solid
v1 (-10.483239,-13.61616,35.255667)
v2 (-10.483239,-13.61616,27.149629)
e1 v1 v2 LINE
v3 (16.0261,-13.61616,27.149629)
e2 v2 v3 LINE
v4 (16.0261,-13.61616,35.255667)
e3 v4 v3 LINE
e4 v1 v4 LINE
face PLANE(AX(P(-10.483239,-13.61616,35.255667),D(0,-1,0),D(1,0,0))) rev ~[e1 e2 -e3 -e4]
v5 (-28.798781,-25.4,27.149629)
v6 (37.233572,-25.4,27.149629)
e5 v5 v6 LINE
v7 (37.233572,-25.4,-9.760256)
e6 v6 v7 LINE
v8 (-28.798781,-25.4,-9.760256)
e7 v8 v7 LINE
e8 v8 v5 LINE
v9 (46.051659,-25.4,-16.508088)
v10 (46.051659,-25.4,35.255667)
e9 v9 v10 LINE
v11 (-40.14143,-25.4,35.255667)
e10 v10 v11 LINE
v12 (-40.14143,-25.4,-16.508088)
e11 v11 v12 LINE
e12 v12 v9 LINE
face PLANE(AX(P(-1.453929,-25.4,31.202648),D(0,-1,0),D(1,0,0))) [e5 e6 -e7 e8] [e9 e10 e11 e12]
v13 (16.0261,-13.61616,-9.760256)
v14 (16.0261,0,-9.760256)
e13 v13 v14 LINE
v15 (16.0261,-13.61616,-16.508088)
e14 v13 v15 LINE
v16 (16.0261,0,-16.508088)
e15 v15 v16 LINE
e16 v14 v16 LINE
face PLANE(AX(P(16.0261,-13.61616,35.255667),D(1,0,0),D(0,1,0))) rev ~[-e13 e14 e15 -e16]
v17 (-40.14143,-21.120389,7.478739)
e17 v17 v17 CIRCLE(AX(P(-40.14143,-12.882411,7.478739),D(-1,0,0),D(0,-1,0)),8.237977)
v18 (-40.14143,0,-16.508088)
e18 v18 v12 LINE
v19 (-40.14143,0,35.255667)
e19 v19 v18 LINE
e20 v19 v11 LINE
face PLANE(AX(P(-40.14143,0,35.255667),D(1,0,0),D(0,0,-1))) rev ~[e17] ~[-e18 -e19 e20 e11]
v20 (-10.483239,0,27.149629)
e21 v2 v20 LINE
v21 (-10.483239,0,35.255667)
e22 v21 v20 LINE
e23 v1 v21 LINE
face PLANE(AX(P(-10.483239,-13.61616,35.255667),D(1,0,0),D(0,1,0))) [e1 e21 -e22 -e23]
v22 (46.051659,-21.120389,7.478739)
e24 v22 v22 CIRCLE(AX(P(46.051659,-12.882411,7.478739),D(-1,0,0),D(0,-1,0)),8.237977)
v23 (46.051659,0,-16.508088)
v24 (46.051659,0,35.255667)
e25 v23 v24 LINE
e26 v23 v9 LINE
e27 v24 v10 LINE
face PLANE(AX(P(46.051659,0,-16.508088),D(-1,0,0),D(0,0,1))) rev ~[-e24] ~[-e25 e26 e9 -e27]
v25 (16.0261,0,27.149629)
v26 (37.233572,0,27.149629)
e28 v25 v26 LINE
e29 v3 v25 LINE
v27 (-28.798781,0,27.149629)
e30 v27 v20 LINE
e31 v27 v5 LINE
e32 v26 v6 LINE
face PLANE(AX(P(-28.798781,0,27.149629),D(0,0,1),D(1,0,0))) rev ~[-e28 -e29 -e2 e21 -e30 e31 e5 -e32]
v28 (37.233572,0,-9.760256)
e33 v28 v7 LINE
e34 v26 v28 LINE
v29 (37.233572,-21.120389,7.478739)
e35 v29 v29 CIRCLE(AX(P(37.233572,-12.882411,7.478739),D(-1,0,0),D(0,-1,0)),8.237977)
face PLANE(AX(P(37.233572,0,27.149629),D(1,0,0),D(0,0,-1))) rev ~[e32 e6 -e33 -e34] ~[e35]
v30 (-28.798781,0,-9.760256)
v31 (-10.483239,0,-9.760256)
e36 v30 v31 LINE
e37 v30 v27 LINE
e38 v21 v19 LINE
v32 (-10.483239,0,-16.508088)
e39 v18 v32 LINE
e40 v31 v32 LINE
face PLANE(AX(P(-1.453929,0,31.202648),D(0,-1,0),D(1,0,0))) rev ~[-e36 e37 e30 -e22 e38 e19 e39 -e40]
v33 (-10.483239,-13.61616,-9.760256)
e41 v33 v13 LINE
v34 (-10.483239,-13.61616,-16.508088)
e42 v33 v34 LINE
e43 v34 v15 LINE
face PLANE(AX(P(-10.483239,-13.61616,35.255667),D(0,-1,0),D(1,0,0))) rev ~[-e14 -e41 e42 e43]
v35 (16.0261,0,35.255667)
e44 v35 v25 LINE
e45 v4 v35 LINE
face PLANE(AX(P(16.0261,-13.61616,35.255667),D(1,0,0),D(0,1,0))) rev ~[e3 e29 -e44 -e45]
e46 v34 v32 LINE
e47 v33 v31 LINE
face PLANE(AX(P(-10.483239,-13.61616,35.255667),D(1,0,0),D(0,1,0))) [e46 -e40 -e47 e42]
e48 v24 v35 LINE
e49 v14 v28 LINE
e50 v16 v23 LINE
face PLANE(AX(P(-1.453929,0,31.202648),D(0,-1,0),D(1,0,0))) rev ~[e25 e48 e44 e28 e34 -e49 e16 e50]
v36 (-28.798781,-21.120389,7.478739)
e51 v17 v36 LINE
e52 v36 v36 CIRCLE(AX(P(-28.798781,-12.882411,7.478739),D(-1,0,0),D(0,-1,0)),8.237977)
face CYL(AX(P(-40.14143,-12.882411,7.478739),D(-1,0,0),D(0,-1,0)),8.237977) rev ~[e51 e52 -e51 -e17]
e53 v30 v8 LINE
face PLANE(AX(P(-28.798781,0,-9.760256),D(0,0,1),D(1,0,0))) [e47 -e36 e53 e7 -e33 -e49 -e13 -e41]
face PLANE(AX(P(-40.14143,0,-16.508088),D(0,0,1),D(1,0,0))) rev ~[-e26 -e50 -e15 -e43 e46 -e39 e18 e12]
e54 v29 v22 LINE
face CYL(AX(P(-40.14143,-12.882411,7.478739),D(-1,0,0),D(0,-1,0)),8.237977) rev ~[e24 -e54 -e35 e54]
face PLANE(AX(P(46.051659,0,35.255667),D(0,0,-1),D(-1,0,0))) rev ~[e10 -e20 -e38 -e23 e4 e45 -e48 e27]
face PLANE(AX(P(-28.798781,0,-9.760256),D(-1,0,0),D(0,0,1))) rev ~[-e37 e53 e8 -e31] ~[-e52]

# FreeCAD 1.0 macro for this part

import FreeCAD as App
import Part
import Sketcher
from FreeCAD import Vector
Q = App.Units.Quantity

doc = App.newDocument("Part")
body = doc.addObject("PartDesign::Body", "Body")

sketch1 = body.newObject("Sketcher::SketchObject", "Sketch")
sketch1.AttachmentSupport = (doc.getObject("XZ_Plane"), [""])
sketch1.MapMode = "FlatFace"
sketch1.addGeometry(Part.LineSegment(Vector(-40, 35, 0), Vector(-40, -17, 0)), False)
sketch1.addGeometry(Part.LineSegment(Vector(-40, -17, 0), Vector(46, -17, 0)), False)
sketch1.addGeometry(Part.LineSegment(Vector(46, -17, 0), Vector(46, 35, 0)), False)
sketch1.addGeometry(Part.LineSegment(Vector(46, 35, 0), Vector(-40, 35, 0)), False)
sketch1.addGeometry(Part.LineSegment(Vector(-29, 27, 0), Vector(37, 27, 0)), False)
sketch1.addGeometry(Part.LineSegment(Vector(37, 27, 0), Vector(37, -10, 0)), False)
sketch1.addGeometry(Part.LineSegment(Vector(37, -10, 0), Vector(-29, -10, 0)), False)
sketch1.addGeometry(Part.LineSegment(Vector(-29, -10, 0), Vector(-29, 27, 0)), False)
sketch1.addConstraint(Sketcher.Constraint("Coincident", 0, 2, 1, 1))
sketch1.addConstraint(Sketcher.Constraint("Coincident", 1, 2, 2, 1))
sketch1.addConstraint(Sketcher.Constraint("Coincident", 2, 2, 3, 1))
sketch1.addConstraint(Sketcher.Constraint("Coincident", 3, 2, 0, 1))
sketch1.addConstraint(Sketcher.Constraint("Coincident", 4, 2, 5, 1))
sketch1.addConstraint(Sketcher.Constraint("Coincident", 5, 2, 6, 1))
sketch1.addConstraint(Sketcher.Constraint("Coincident", 6, 2, 7, 1))
sketch1.addConstraint(Sketcher.Constraint("Coincident", 7, 2, 4, 1))
sketch1.addConstraint(Sketcher.Constraint("Vertical", 0))
sketch1.addConstraint(Sketcher.Constraint("Horizontal", 1))
sketch1.addConstraint(Sketcher.Constraint("Vertical", 2))
sketch1.addConstraint(Sketcher.Constraint("Horizontal", 3))
sketch1.addConstraint(Sketcher.Constraint("Horizontal", 4))
sketch1.addConstraint(Sketcher.Constraint("Vertical", 5))
sketch1.addConstraint(Sketcher.Constraint("Horizontal", 6))
sketch1.addConstraint(Sketcher.Constraint("Vertical", 7))
sketch1.addConstraint(Sketcher.Constraint("DistanceX", 1, 1, 1, 2, 86.193088))
sketch1.addConstraint(Sketcher.Constraint("DistanceX", 4, 1, 4, 2, 66.032354))
sketch1.addConstraint(Sketcher.Constraint("DistanceY", 0, 2, 0, 1, 51.763754))
sketch1.addConstraint(Sketcher.Constraint("DistanceY", 5, 2, 5, 1, 36.909885))
sketch1.addConstraint(Sketcher.Constraint("DistanceX", 0, 2, -1, 1, 40.14143))
sketch1.addConstraint(Sketcher.Constraint("DistanceY", -1, 1, 4, 2, 27.149629))
sketch1.addConstraint(Sketcher.Constraint("DistanceX", 6, 2, -1, 1, 28.798781))
sketch1.addConstraint(Sketcher.Constraint("DistanceY", 1, 2, 5, 2, 6.747832))
pad1 = body.newObject("PartDesign::Pad", "Pad")
pad1.Profile = sketch1
pad1.Length = Q("1 in")

sketch2 = body.newObject("Sketcher::SketchObject", "Sketch001")
sketch2.AttachmentSupport = (doc.getObject("XZ_Plane"), [""])
sketch2.MapMode = "FlatFace"
sketch2.addGeometry(Part.LineSegment(Vector(-40, 35, 0), Vector(-40, -17, 0)), False)
sketch2.addGeometry(Part.LineSegment(Vector(-40, -17, 0), Vector(46, -17, 0)), False)
sketch2.addGeometry(Part.LineSegment(Vector(46, -17, 0), Vector(46, 35, 0)), False)
sketch2.addGeometry(Part.LineSegment(Vector(46, 35, 0), Vector(-40, 35, 0)), False)
sketch2.addGeometry(Part.LineSegment(Vector(-29, 27, 0), Vector(37, 27, 0)), False)
sketch2.addGeometry(Part.LineSegment(Vector(37, 27, 0), Vector(37, -10, 0)), False)
sketch2.addGeometry(Part.LineSegment(Vector(37, -10, 0), Vector(-29, -10, 0)), False)
sketch2.addGeometry(Part.LineSegment(Vector(-29, -10, 0), Vector(-29, 27, 0)), False)
sketch2.addConstraint(Sketcher.Constraint("Coincident", 0, 2, 1, 1))
sketch2.addConstraint(Sketcher.Constraint("Coincident", 1, 2, 2, 1))
sketch2.addConstraint(Sketcher.Constraint("Coincident", 2, 2, 3, 1))
sketch2.addConstraint(Sketcher.Constraint("Coincident", 3, 2, 0, 1))
sketch2.addConstraint(Sketcher.Constraint("Coincident", 4, 2, 5, 1))
sketch2.addConstraint(Sketcher.Constraint("Coincident", 5, 2, 6, 1))
sketch2.addConstraint(Sketcher.Constraint("Coincident", 6, 2, 7, 1))
sketch2.addConstraint(Sketcher.Constraint("Coincident", 7, 2, 4, 1))
sketch2.addConstraint(Sketcher.Constraint("Vertical", 0))
sketch2.addConstraint(Sketcher.Constraint("Horizontal", 1))
sketch2.addConstraint(Sketcher.Constraint("Vertical", 2))
sketch2.addConstraint(Sketcher.Constraint("Horizontal", 3))
sketch2.addConstraint(Sketcher.Constraint("Horizontal", 4))
sketch2.addConstraint(Sketcher.Constraint("Vertical", 5))
sketch2.addConstraint(Sketcher.Constraint("Horizontal", 6))
sketch2.addConstraint(Sketcher.Constraint("Vertical", 7))
sketch2.addConstraint(Sketcher.Constraint("DistanceX", 1, 1, 1, 2, 86.193088))
sketch2.addConstraint(Sketcher.Constraint("DistanceX", 4, 1, 4, 2, 66.032354))
sketch2.addConstraint(Sketcher.Constraint("DistanceY", 0, 2, 0, 1, 51.763754))
sketch2.addConstraint(Sketcher.Constraint("DistanceY", 5, 2, 5, 1, 36.909885))
sketch2.addConstraint(Sketcher.Constraint("DistanceX", 0, 2, -1, 1, 40.14143))
sketch2.addConstraint(Sketcher.Constraint("DistanceY", -1, 1, 4, 2, 27.149629))
sketch2.addConstraint(Sketcher.Constraint("DistanceX", 6, 2, -1, 1, 28.798781))
sketch2.addConstraint(Sketcher.Constraint("DistanceY", 1, 2, 5, 2, 6.747832))
pad2 = body.newObject("PartDesign::Pad", "Pad001")
pad2.Profile = sketch2
pad2.Length = Q("1 in")

sketch3 = body.newObject("Sketcher::SketchObject", "Sketch002")
sketch3.AttachmentSupport = (doc.getObject("XY_Plane"), [""])
sketch3.MapMode = "FlatFace"
sketch3.AttachmentOffset = App.Placement(Vector(0, 0, 35.255667), App.Rotation())
sketch3.addGeometry(Part.LineSegment(Vector(-10, 0, 0), Vector(-10, -14, 0)), False)
sketch3.addGeometry(Part.LineSegment(Vector(-10, -14, 0), Vector(16, -14, 0)), False)
sketch3.addGeometry(Part.LineSegment(Vector(16, -14, 0), Vector(16, 0, 0)), False)
sketch3.addGeometry(Part.LineSegment(Vector(16, 0, 0), Vector(-10, 0, 0)), False)
sketch3.addConstraint(Sketcher.Constraint("Coincident", 0, 2, 1, 1))
sketch3.addConstraint(Sketcher.Constraint("Coincident", 1, 2, 2, 1))
sketch3.addConstraint(Sketcher.Constraint("Coincident", 2, 2, 3, 1))
sketch3.addConstraint(Sketcher.Constraint("Coincident", 3, 2, 0, 1))
sketch3.addConstraint(Sketcher.Constraint("Vertical", 0))
sketch3.addConstraint(Sketcher.Constraint("Horizontal", 1))
sketch3.addConstraint(Sketcher.Constraint("Vertical", 2))
sketch3.addConstraint(Sketcher.Constraint("Horizontal", 3))
sketch3.addConstraint(Sketcher.Constraint("PointOnObject", 2, 2, -1))
sketch3.addConstraint(Sketcher.Constraint("DistanceX", 1, 1, 1, 2, 26.509339))
sketch3.addConstraint(Sketcher.Constraint("DistanceY", 0, 2, 0, 1, 13.61616))
sketch3.addConstraint(Sketcher.Constraint("DistanceX", -1, 1, 1, 2, 16.0261))
pocket1 = body.newObject("PartDesign::Pocket", "Pocket")
pocket1.Profile = sketch3
pocket1.Length = Q("3.01 in")

sketch4 = body.newObject("Sketcher::SketchObject", "Sketch003")
sketch4.AttachmentSupport = (doc.getObject("YZ_Plane"), [""])
sketch4.MapMode = "FlatFace"
sketch4.AttachmentOffset = App.Placement(Vector(0, 0, -40.14143), App.Rotation())
sketch4.addGeometry(Part.Circle(Vector(-13, 7, 0), Vector(0, 0, 1), 8), False)
sketch4.addConstraint(Sketcher.Constraint("Diameter", 0, 16.475955))
sketch4.addConstraint(Sketcher.Constraint("DistanceX", 0, 3, -1, 1, 12.882411))
sketch4.addConstraint(Sketcher.Constraint("DistanceY", -1, 1, 0, 3, 7.478739))
pocket2 = body.newObject("PartDesign::Pocket", "Pocket001")
pocket2.Profile = sketch4
pocket2.Length = Q("6.11 in")
pocket2.Reversed = True

doc.recompute()
